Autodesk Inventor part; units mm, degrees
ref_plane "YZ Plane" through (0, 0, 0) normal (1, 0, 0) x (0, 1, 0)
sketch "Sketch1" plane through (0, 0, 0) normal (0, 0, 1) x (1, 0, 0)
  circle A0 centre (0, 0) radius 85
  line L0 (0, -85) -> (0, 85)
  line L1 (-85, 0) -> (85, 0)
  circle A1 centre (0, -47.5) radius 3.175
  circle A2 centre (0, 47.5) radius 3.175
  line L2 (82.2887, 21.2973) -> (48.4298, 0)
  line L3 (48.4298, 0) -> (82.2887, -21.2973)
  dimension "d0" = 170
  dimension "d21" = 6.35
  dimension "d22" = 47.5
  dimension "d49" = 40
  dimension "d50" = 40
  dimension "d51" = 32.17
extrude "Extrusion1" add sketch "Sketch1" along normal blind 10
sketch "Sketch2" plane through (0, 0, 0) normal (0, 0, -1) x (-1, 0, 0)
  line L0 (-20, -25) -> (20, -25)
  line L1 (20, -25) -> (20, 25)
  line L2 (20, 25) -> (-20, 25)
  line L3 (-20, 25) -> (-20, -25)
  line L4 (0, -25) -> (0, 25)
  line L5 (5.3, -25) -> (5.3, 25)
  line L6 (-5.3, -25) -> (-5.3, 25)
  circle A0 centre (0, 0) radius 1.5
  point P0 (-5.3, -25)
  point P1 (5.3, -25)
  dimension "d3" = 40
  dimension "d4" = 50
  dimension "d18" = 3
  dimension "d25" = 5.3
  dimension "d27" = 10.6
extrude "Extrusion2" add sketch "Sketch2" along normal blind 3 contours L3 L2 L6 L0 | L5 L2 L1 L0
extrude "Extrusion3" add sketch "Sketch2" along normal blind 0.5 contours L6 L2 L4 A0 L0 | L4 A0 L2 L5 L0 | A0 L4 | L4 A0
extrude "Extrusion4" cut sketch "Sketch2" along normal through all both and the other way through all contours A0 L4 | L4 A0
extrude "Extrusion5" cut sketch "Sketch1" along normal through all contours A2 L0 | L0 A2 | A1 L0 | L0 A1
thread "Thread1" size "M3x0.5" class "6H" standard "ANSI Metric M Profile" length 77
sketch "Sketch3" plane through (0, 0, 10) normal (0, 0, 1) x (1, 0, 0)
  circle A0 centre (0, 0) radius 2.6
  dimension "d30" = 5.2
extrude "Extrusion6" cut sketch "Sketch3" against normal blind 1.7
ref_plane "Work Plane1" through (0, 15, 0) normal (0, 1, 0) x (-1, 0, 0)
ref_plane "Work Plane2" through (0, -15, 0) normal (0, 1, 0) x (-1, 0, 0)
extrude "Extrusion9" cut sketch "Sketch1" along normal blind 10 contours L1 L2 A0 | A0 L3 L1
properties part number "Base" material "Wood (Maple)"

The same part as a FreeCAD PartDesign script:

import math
import FreeCAD as App
import Part
import Sketcher
Q = App.Units.Quantity

doc = App.newDocument("Part")
body = doc.addObject("PartDesign::Body", "Body")

sketch1 = body.newObject("Sketcher::SketchObject", "Sketch")
sketch1.AttachmentSupport = (doc.getObject("XY_Plane"), [""])
sketch1.MapMode = "FlatFace"
sketch1.addGeometry(Part.Circle(App.Vector(0, 0, 0), App.Vector(0, 0, 1), 85), False)
sketch1.addConstraint([
    Sketcher.Constraint("Coincident", 0, 3, -1, 1),
    Sketcher.Constraint("Diameter", 0, Q("170 mm")),
])
pad1 = body.newObject("PartDesign::Pad", "Pad")
pad1.Profile = sketch1
pad1.Length = 10

sketch2 = body.newObject("Sketcher::SketchObject", "Sketch001")
sketch2.AttachmentSupport = (doc.getObject("XY_Plane"), [""])
sketch2.MapMode = "FlatFace"
sketch2.addGeometry([
    Part.LineSegment(App.Vector(20, 25, 0), App.Vector(20, -25, 0)),
    Part.LineSegment(App.Vector(20, -25, 0), App.Vector(5, -25, 0)),
    Part.LineSegment(App.Vector(5, -25, 0), App.Vector(5, 25, 0)),
    Part.LineSegment(App.Vector(5, 25, 0), App.Vector(20, 25, 0)),
    Part.LineSegment(App.Vector(-5, 25, 0), App.Vector(-5, -25, 0)),
    Part.LineSegment(App.Vector(-5, -25, 0), App.Vector(-20, -25, 0)),
    Part.LineSegment(App.Vector(-20, -25, 0), App.Vector(-20, 25, 0)),
    Part.LineSegment(App.Vector(-20, 25, 0), App.Vector(-5, 25, 0)),
], False)
sketch2.addConstraint([
    Sketcher.Constraint("Coincident", 0, 2, 1, 1),
    Sketcher.Constraint("Coincident", 1, 2, 2, 1),
    Sketcher.Constraint("Coincident", 2, 2, 3, 1),
    Sketcher.Constraint("Coincident", 3, 2, 0, 1),
    Sketcher.Constraint("Coincident", 4, 2, 5, 1),
    Sketcher.Constraint("Coincident", 5, 2, 6, 1),
    Sketcher.Constraint("Coincident", 6, 2, 7, 1),
    Sketcher.Constraint("Coincident", 7, 2, 4, 1),
    Sketcher.Constraint("Vertical", 0),
    Sketcher.Constraint("Horizontal", 1),
    Sketcher.Constraint("Vertical", 2),
    Sketcher.Constraint("Horizontal", 3),
    Sketcher.Constraint("Vertical", 4),
    Sketcher.Constraint("Horizontal", 5),
    Sketcher.Constraint("Vertical", 6),
    Sketcher.Constraint("Horizontal", 7),
    Sketcher.Constraint("Symmetric", 2, 2, 4, 2, -1, 1),
    Sketcher.Constraint("Symmetric", 0, 2, 6, 2, -1, 1),
    Sketcher.Constraint("Horizontal", 1, 2, 4, 2),
    Sketcher.Constraint("DistanceY", 0, 2, 0, 1, Q("50 mm")),
    Sketcher.Constraint("DistanceX", 5, 2, 0, 2, Q("40 mm")),
    Sketcher.Constraint("DistanceX", -1, 1, 1, 2, Q("5.3 mm")),
])
pad2 = body.newObject("PartDesign::Pad", "Pad001")
pad2.Profile = sketch2
pad2.Length = 3
pad2.Reversed = True

sketch3 = body.newObject("Sketcher::SketchObject", "Sketch002")
sketch3.AttachmentSupport = (doc.getObject("XY_Plane"), [""])
sketch3.MapMode = "FlatFace"
sketch3.addGeometry([
    Part.LineSegment(App.Vector(5, 25, 0), App.Vector(5, -25, 0)),
    Part.LineSegment(App.Vector(5, -25, 0), App.Vector(-5, -25, 0)),
    Part.LineSegment(App.Vector(-5, -25, 0), App.Vector(-5, 25, 0)),
    Part.LineSegment(App.Vector(-5, 25, 0), App.Vector(5, 25, 0)),
], False)
sketch3.addConstraint([
    Sketcher.Constraint("Coincident", 0, 2, 1, 1),
    Sketcher.Constraint("Coincident", 1, 2, 2, 1),
    Sketcher.Constraint("Coincident", 2, 2, 3, 1),
    Sketcher.Constraint("Coincident", 3, 2, 0, 1),
    Sketcher.Constraint("Vertical", 0),
    Sketcher.Constraint("Horizontal", 1),
    Sketcher.Constraint("Vertical", 2),
    Sketcher.Constraint("Horizontal", 3),
    Sketcher.Constraint("Symmetric", 0, 2, 2, 2, -1, 1),
    Sketcher.Constraint("DistanceY", 0, 2, 0, 1, Q("50 mm")),
    Sketcher.Constraint("DistanceX", 1, 2, 1, 1, Q("10.6 mm")),
])
pad3 = body.newObject("PartDesign::Pad", "Pad002")
pad3.Profile = sketch3
pad3.Length = 0.5
pad3.Reversed = True

sketch4 = body.newObject("Sketcher::SketchObject", "Sketch003")
sketch4.AttachmentSupport = (doc.getObject("XY_Plane"), [""])
sketch4.MapMode = "FlatFace"
sketch4.addGeometry(Part.Circle(App.Vector(0, 0, 0), App.Vector(0, 0, 1), 1.5), False)
sketch4.addConstraint([
    Sketcher.Constraint("Coincident", 0, 3, -1, 1),
    Sketcher.Constraint("Diameter", 0, Q("3 mm")),
])
pocket1 = body.newObject("PartDesign::Pocket", "Pocket")
pocket1.Profile = sketch4
pocket1.Type = "ThroughAll"
pocket1.Midplane = True

sketch5 = body.newObject("Sketcher::SketchObject", "Sketch004")
sketch5.AttachmentSupport = (doc.getObject("XY_Plane"), [""])
sketch5.MapMode = "FlatFace"
sketch5.addGeometry([
    Part.Circle(App.Vector(0, 47.5, 0), App.Vector(0, 0, 1), 3.2),
    Part.Circle(App.Vector(0, -47.5, 0), App.Vector(0, 0, 1), 3.2),
], False)
sketch5.addConstraint([
    Sketcher.Constraint("Equal", 0, 1),
    Sketcher.Constraint("Symmetric", 0, 3, 1, 3, -1, 1),
    Sketcher.Constraint("PointOnObject", 0, 3, -2),
    Sketcher.Constraint("Diameter", 0, Q("6.35 mm")),
    Sketcher.Constraint("DistanceY", -1, 1, 0, 3, Q("47.5 mm")),
])
pocket2 = body.newObject("PartDesign::Pocket", "Pocket001")
pocket2.Profile = sketch5
pocket2.Type = "ThroughAll"
pocket2.Reversed = True

sketch6 = body.newObject("Sketcher::SketchObject", "Sketch005")
sketch6.AttachmentSupport = (doc.getObject("XY_Plane"), [""])
sketch6.MapMode = "FlatFace"
sketch6.AttachmentOffset = App.Placement(App.Vector(0, 0, 10), App.Rotation())
sketch6.addGeometry(Part.Circle(App.Vector(0, 0, 0), App.Vector(0, 0, 1), 2.6), False)
sketch6.addConstraint([
    Sketcher.Constraint("Coincident", 0, 3, -1, 1),
    Sketcher.Constraint("Diameter", 0, Q("5.2 mm")),
])
pocket3 = body.newObject("PartDesign::Pocket", "Pocket002")
pocket3.Profile = sketch6
pocket3.Length = 1.7

sketch7 = body.newObject("Sketcher::SketchObject", "Sketch006")
sketch7.AttachmentSupport = (doc.getObject("XY_Plane"), [""])
sketch7.MapMode = "FlatFace"
sketch7.addGeometry([
    Part.LineSegment(App.Vector(82, 21, 0), App.Vector(48, 0, 0)),
    Part.LineSegment(App.Vector(48, 0, 0), App.Vector(82, -21, 0)),
    Part.ArcOfCircle(Part.Circle(App.Vector(0, 0, 0), App.Vector(0, 0, 1), 85), math.radians(-15), math.radians(15)),
], False)
sketch7.addConstraint([
    Sketcher.Constraint("Coincident", 0, 2, 1, 1),
    Sketcher.Constraint("Coincident", 1, 2, 2, 1),
    Sketcher.Constraint("Coincident", 2, 2, 0, 1),
    Sketcher.Constraint("Coincident", 2, 3, -1, 1),
    Sketcher.Constraint("PointOnObject", 0, 2, -1),
    Sketcher.Constraint("Vertical", 1, 2, 2, 2),
    Sketcher.Constraint("Radius", 2, Q("85 mm")),
    Sketcher.Constraint("Distance", 0, Q("40 mm")),
    Sketcher.Constraint("Angle", 1, Q("-32.17 deg")),
])
pocket4 = body.newObject("PartDesign::Pocket", "Pocket003")
pocket4.Profile = sketch7
pocket4.Length = 10
pocket4.Reversed = True

doc.recompute()
